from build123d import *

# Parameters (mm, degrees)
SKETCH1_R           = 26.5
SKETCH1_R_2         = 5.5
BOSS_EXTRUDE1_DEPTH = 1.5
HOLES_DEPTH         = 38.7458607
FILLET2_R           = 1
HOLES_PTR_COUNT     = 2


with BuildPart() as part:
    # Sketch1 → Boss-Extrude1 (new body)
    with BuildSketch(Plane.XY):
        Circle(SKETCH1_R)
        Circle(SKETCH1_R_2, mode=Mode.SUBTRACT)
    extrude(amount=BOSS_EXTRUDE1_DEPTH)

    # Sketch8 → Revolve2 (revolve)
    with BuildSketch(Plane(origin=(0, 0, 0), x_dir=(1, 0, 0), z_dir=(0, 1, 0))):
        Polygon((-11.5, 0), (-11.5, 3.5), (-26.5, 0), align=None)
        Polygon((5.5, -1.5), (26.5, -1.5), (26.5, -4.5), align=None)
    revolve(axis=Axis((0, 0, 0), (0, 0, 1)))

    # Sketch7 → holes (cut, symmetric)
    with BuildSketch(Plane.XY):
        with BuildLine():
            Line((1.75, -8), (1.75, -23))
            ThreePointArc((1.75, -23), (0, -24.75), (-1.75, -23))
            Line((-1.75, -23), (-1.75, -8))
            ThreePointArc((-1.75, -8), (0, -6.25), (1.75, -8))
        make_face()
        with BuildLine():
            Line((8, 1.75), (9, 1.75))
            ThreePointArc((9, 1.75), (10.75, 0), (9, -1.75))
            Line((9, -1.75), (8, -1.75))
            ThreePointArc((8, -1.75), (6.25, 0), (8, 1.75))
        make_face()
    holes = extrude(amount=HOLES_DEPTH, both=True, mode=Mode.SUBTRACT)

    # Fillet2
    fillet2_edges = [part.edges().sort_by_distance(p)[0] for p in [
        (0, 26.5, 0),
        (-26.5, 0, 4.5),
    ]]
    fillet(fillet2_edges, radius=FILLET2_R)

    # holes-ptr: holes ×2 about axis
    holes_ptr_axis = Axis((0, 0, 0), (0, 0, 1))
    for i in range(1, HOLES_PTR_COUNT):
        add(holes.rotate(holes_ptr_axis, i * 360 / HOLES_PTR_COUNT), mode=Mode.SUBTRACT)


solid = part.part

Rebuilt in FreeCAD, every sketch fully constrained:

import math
import FreeCAD as App
import Part
import Sketcher
from FreeCAD import Vector


def edges_at(feature, points):
    """Names of the edges that pass closest to the given points."""
    edges = feature.Shape.Edges
    near = lambda p: min(range(len(edges)), key=lambda i: edges[i].distToShape(Part.Vertex(*p))[0])
    return sorted({f"Edge{near(p) + 1}" for p in points})

doc = App.newDocument("Part")
body = doc.addObject("PartDesign::Body", "Body")

# Sketch on XY plane
sketch1 = doc.addObject("Sketcher::SketchObject", "Sketch")
body.addObject(sketch1)
sketch1.AttachmentSupport = (doc.XY_Plane, [""])
sketch1.MapMode = "FlatFace"
sketch1.addGeometry([
    Part.Circle(Vector(0, 0, 0), Vector(0, 0, 1), 26),
    Part.Circle(Vector(0, 0, 0), Vector(0, 0, 1), 6),
], False)
sketch1.addConstraint([
    Sketcher.Constraint("Coincident", 0, 3, -1, 1),
    Sketcher.Constraint("Coincident", 1, 3, -1, 1),
    Sketcher.Constraint("Diameter", 0, 53.0),
    Sketcher.Constraint("Diameter", 1, 11.0),
])
pad1 = doc.addObject("PartDesign::Pad", "Pad")
body.addObject(pad1)
pad1.Profile = sketch1
pad1.Length = 1.5

# Sketch on XZ plane
sketch2 = doc.addObject("Sketcher::SketchObject", "Sketch001")
body.addObject(sketch2)
sketch2.AttachmentSupport = (doc.XZ_Plane, [""])
sketch2.MapMode = "FlatFace"
sketch2.addGeometry([
    Part.LineSegment(Vector(-11.5, 0, 0), Vector(-11.5, -3.5, 0)),  # 0
    Part.LineSegment(Vector(-11.5, -3.5, 0), Vector(-26.5, 0, 0)),  # 1
    Part.LineSegment(Vector(-26.5, 0, 0), Vector(-11.5, 0, 0)),  # 2
    Part.LineSegment(Vector(26.5, 1.5, 0), Vector(5.5, 1.5, 0)),  # 3
    Part.LineSegment(Vector(5.5, 1.5, 0), Vector(26.5, 4.5, 0)),  # 4
    Part.LineSegment(Vector(26.5, 4.5, 0), Vector(26.5, 1.5, 0)),  # 5
], False)
sketch2.addConstraint([
    Sketcher.Constraint("Coincident", 0, 2, 1, 1),
    Sketcher.Constraint("Coincident", 1, 2, 2, 1),
    Sketcher.Constraint("Coincident", 2, 2, 0, 1),
    Sketcher.Constraint("Coincident", 3, 2, 4, 1),
    Sketcher.Constraint("Coincident", 4, 2, 5, 1),
    Sketcher.Constraint("Coincident", 5, 2, 3, 1),
    Sketcher.Constraint("Vertical", 0),
    Sketcher.Constraint("Horizontal", 2),
    Sketcher.Constraint("Horizontal", 3),
    Sketcher.Constraint("Vertical", 5),
    Sketcher.Constraint("PointOnObject", 1, 2, -1),
    Sketcher.Constraint("DistanceX", 2, 1, 2, 2, 15.0),
    Sketcher.Constraint("DistanceX", 3, 2, 3, 1, 21.0),
    Sketcher.Constraint("DistanceY", 5, 2, 5, 1, 3.0),
    Sketcher.Constraint("DistanceY", 0, 2, 0, 1, 3.5),
    Sketcher.Constraint("DistanceX", 2, 2, 3, 2, 17.0),
    Sketcher.Constraint("DistanceY", 0, 2, 3, 2, 5.0),
    Sketcher.Constraint("DistanceX", 0, 2, -1, 1, 11.5),
])
revolution = doc.addObject("PartDesign::Revolution", "Revolution")
body.addObject(revolution)
revolution.Profile = sketch2
revolution.ReferenceAxis = (sketch2, ["V_Axis"])
revolution.Angle = 360

# Sketch on XY plane
sketch3 = doc.addObject("Sketcher::SketchObject", "Sketch002")
body.addObject(sketch3)
sketch3.AttachmentSupport = (doc.XY_Plane, [""])
sketch3.MapMode = "FlatFace"
sketch3.addGeometry([
    Part.LineSegment(Vector(1.8, -23, 0), Vector(1.8, -8, 0)),  # 0
    Part.ArcOfCircle(Part.Circle(Vector(0, -8, 0), Vector(0, 0, 1), 1.8), math.radians(0), math.radians(180)),  # 1
    Part.LineSegment(Vector(-1.8, -8, 0), Vector(-1.8, -23, 0)),  # 2
    Part.ArcOfCircle(Part.Circle(Vector(0, -23, 0), Vector(0, 0, 1), 1.8), math.radians(180), math.radians(360)),  # 3
    Part.LineSegment(Vector(9, 1.8, 0), Vector(8, 1.8, 0)),  # 4
    Part.ArcOfCircle(Part.Circle(Vector(8, 0, 0), Vector(0, 0, 1), 1.8), math.radians(90), math.radians(270)),  # 5
    Part.LineSegment(Vector(8, -1.8, 0), Vector(9, -1.8, 0)),  # 6
    Part.ArcOfCircle(Part.Circle(Vector(9, 0, 0), Vector(0, 0, 1), 1.8), math.radians(-90), math.radians(90)),  # 7
], False)
sketch3.addConstraint([
    Sketcher.Constraint("Tangent", 0, 2, 1, 1),
    Sketcher.Constraint("Tangent", 1, 2, 2, 1),
    Sketcher.Constraint("Tangent", 2, 2, 3, 1),
    Sketcher.Constraint("Tangent", 3, 2, 0, 1),
    Sketcher.Constraint("Tangent", 4, 2, 5, 1),
    Sketcher.Constraint("Tangent", 5, 2, 6, 1),
    Sketcher.Constraint("Tangent", 6, 2, 7, 1),
    Sketcher.Constraint("Tangent", 7, 2, 4, 1),
    Sketcher.Constraint("Vertical", 0),
    Sketcher.Constraint("Vertical", 2),
    Sketcher.Constraint("Horizontal", 4),
    Sketcher.Constraint("Horizontal", 6),
    Sketcher.Constraint("Equal", 3, 5),
    Sketcher.Constraint("PointOnObject", 1, 3, -2),
    Sketcher.Constraint("PointOnObject", 5, 3, -1),
    Sketcher.Constraint("DistanceX", 4, 2, 4, 1, 1.0),
    Sketcher.Constraint("DistanceY", 0, 1, 0, 2, 15.0),
    Sketcher.Constraint("Radius", 1, 1.75),
    Sketcher.Constraint("DistanceY", 1, 3, -1, 1, 8.0),
    Sketcher.Constraint("DistanceX", -1, 1, 5, 3, 8.0),
])
pocket1 = doc.addObject("PartDesign::Pocket", "Pocket")
body.addObject(pocket1)
pocket1.Profile = sketch3
pocket1.Length = 77.491721
pocket1.Midplane = True
doc.recompute()

fillet = doc.addObject("PartDesign::Fillet", "Fillet")
body.addObject(fillet)
fillet.Base = (pocket1, edges_at(pocket1, [(0, 26.5, 0), (-26.5, 0, 4.5)]))
fillet.Radius = 1
doc.recompute()

polarpattern = doc.addObject("PartDesign::PolarPattern", "PolarPattern")
body.addObject(polarpattern)
polarpattern.Originals = [pocket1]
polarpattern.Axis = (doc.Z_Axis, [""])
polarpattern.Angle = 360
polarpattern.Occurrences = 2
body.Tip = polarpattern

doc.recompute()
